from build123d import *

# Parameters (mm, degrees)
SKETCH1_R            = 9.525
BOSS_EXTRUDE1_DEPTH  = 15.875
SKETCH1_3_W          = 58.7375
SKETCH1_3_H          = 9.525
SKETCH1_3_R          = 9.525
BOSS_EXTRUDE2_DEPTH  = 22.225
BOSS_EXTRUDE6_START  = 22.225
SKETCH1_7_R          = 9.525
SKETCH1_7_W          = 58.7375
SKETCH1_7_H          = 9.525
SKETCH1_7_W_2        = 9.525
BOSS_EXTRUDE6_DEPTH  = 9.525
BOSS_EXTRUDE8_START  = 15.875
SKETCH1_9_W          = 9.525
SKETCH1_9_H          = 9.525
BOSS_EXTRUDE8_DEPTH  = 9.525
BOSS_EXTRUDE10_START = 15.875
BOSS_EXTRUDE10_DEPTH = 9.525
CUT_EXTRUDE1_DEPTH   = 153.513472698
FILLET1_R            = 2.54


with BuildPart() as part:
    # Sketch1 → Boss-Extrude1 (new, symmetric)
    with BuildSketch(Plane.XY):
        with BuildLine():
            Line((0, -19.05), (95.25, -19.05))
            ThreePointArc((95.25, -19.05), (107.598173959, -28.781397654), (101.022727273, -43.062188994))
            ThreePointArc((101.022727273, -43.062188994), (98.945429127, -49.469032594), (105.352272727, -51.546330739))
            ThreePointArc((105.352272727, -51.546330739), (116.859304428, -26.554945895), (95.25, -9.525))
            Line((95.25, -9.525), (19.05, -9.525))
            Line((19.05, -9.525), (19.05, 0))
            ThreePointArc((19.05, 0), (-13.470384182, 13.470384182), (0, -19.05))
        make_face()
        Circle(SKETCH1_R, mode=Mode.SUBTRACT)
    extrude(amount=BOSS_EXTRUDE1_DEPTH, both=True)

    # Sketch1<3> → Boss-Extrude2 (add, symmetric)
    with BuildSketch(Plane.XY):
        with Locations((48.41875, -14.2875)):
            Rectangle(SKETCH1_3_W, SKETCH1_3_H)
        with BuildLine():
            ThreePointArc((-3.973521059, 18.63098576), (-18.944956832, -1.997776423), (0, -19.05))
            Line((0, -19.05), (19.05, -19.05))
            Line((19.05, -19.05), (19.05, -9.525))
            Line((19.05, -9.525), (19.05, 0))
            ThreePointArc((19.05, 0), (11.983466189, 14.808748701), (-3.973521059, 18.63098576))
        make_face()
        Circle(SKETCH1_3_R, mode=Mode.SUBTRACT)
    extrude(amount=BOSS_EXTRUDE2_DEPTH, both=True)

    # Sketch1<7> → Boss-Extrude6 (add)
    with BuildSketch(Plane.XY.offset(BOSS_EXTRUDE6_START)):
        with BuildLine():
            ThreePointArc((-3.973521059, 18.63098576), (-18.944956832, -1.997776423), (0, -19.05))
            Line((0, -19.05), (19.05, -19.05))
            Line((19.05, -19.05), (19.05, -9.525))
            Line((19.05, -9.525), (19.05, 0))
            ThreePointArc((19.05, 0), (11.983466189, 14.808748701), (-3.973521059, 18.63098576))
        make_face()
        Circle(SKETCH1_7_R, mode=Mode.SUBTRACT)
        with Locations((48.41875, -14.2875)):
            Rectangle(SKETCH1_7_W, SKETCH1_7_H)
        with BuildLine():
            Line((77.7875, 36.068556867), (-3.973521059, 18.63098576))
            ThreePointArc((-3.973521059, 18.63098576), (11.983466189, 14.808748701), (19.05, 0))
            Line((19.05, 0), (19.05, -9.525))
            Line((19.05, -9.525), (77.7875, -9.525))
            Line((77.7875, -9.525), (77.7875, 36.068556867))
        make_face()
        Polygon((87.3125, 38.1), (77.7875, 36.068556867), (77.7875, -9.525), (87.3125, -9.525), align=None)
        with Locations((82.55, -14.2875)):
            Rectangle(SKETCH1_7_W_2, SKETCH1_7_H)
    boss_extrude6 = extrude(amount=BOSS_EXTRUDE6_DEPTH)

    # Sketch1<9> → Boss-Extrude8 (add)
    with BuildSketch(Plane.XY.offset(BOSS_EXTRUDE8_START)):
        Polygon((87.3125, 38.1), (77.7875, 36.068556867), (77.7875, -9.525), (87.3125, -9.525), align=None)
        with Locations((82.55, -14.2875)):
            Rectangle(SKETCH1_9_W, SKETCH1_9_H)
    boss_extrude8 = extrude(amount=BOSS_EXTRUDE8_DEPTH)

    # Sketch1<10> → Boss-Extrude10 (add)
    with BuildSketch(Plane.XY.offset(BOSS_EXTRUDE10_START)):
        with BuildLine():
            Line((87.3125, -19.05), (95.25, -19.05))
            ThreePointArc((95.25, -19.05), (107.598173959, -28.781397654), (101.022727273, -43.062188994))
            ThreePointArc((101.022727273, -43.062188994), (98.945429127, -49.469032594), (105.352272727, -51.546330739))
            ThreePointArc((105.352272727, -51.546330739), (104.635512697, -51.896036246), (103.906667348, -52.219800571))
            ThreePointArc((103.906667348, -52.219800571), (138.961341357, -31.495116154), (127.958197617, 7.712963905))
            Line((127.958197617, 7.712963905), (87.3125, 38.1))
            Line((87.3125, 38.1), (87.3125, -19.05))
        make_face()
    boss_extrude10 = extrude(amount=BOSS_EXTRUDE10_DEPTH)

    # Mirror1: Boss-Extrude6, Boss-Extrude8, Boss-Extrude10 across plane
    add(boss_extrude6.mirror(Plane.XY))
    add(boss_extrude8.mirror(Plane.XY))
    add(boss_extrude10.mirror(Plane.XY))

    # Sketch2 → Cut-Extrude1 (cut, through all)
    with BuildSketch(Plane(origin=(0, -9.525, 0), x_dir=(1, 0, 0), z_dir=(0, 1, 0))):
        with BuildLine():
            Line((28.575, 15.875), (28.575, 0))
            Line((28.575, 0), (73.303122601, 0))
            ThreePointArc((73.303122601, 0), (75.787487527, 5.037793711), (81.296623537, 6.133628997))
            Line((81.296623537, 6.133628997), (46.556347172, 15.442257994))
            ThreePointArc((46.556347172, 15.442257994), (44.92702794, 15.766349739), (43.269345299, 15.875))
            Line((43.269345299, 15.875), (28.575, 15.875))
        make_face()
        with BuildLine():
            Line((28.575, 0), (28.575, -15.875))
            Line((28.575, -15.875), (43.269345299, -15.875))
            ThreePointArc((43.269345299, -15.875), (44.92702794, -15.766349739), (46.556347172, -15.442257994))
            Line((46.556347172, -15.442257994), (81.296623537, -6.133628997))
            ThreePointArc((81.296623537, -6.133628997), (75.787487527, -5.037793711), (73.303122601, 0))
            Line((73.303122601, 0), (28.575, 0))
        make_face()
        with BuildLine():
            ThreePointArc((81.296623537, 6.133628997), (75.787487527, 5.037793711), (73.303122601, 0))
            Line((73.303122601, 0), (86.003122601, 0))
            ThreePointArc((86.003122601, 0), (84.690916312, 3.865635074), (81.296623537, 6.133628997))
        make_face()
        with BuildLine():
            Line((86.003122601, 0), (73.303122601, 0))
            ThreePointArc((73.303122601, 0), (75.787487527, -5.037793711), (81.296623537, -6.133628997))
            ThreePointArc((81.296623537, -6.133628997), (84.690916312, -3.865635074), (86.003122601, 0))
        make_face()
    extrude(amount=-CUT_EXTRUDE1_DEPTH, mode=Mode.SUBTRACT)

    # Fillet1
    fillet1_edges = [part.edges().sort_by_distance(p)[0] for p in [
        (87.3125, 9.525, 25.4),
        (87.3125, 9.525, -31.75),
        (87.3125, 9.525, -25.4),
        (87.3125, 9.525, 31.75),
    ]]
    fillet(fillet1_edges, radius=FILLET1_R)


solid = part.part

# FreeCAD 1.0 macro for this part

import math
import FreeCAD as App
import Part
import Sketcher
from FreeCAD import Vector
Q = App.Units.Quantity


def edges_at(feature, points):
    """Names of the edges that pass closest to the given points."""
    edges = feature.Shape.Edges
    near = lambda p: min(range(len(edges)), key=lambda i: edges[i].distToShape(Part.Vertex(*p))[0])
    return sorted({f"Edge{near(p) + 1}" for p in points})

doc = App.newDocument("Part")
params = doc.addObject("Spreadsheet::Sheet", "Params")
for row, (alias, value) in enumerate([
    ("sketch1_radius", "0.5 in"),
    ("sketch1_diameter", "0.75 in"),
    ("sketch1_width", "3 in"),
    ("sketch1_radius2", "0.75 in"),
    ("sketch1_radius3", "0.1875 in"),
    ("pad1_length", "1.25 in"),
    ("sketch2_diameter", "0.75 in"),
    ("sketch2_radius", "0.75 in"),
    ("sketch2_width", "2.3125 in"),
    ("pad2_length", "1.75 in"),
    ("sketch3_diameter", "0.75 in"),
    ("sketch3_radius", "0.75 in"),
    ("sketch3_height", "2.25 in"),
    ("sketch3_width", "3.4375 in"),
    ("pad3_length", "0.375 in"),
    ("sketch4_height", "2.25 in"),
    ("sketch4_width", "0.375 in"),
    ("pad4_length", "0.375 in"),
    ("sketch5_radius", "0.5 in"),
    ("sketch5_radius2", "0.1875 in"),
    ("sketch5_height", "2.25 in"),
    ("sketch5_width", "0.3125 in"),
    ("pad5_length", "0.375 in"),
    ("sketch6_radius", "0.5 in"),
    ("sketch6_radius2", "0.25 in"),
    ("sketch6_height", "1.25 in"),
    ("fillet_radius", "0.1 in"),
], start=1):
    params.set(f"A{row}", alias)
    params.set(f"B{row}", "=" + value)
    params.setAlias(f"B{row}", alias)

body = doc.addObject("PartDesign::Body", "Body")

# Sketch on XY plane
sketch1 = doc.addObject("Sketcher::SketchObject", "Sketch")
body.addObject(sketch1)
sketch1.AttachmentSupport = (doc.XY_Plane, [""])
sketch1.MapMode = "FlatFace"
sketch1.addGeometry([
    Part.LineSegment(Vector(0, -19.1, 0), Vector(95.2, -19.1, 0)),  # 0
    Part.ArcOfCircle(Part.Circle(Vector(95.2, -31.8, 0), Vector(0, 0, 1), 12.7), math.radians(-63), math.radians(90)),  # 1
    Part.ArcOfCircle(Part.Circle(Vector(103.2, -47.3, 0), Vector(0, 0, 1), 4.8), math.radians(117), math.radians(297)),  # 2
    Part.ArcOfCircle(Part.Circle(Vector(95.3, -31.8, 0), Vector(0, 0, 1), 22.2), math.radians(-63), math.radians(90)),  # 3
    Part.LineSegment(Vector(95.2, -9.5, 0), Vector(19.1, -9.5, 0)),  # 4
    Part.LineSegment(Vector(19.1, -9.5, 0), Vector(19.1, 0, 0)),  # 5
    Part.ArcOfCircle(Part.Circle(Vector(0, 0, 0), Vector(0, 0, 1), 19.1), math.radians(0), math.radians(270)),  # 6
    Part.Circle(Vector(0, 0, 0), Vector(0, 0, 1), 9.5),  # 7
], False)
sketch1.addConstraint([
    Sketcher.Constraint("Tangent", 0, 2, 1, 2),
    Sketcher.Constraint("Tangent", 1, 1, 2, 1),
    Sketcher.Constraint("Tangent", 2, 2, 3, 1),
    Sketcher.Constraint("Tangent", 3, 2, 4, 1),
    Sketcher.Constraint("Coincident", 4, 2, 5, 1),
    Sketcher.Constraint("Tangent", 5, 2, 6, 1),
    Sketcher.Constraint("Tangent", 6, 2, 0, 1),
    Sketcher.Constraint("Horizontal", 0),
    Sketcher.Constraint("Horizontal", 4),
    Sketcher.Constraint("Vertical", 5),
    Sketcher.Constraint("Coincident", 6, 3, -1, 1),
    Sketcher.Constraint("Coincident", 7, 3, -1, 1),
    Sketcher.Constraint("Coincident", 3, 3, 1, 3),
    Sketcher.Constraint("Radius", 1, Q("0.5 in")),
    Sketcher.Constraint("Diameter", 7, Q("0.75 in")),
    Sketcher.Constraint("DistanceX", 4, 2, 4, 1, Q("3 in")),
    Sketcher.Constraint("Radius", 6, Q("0.75 in")),
    Sketcher.Constraint("Radius", 2, Q("0.1875 in")),
    Sketcher.Constraint("DistanceX", -1, 1, 2, 3, Q("4.0625 in")),
])
sketch1.setExpression("Constraints[13]", "Params.sketch1_radius")
sketch1.setExpression("Constraints[14]", "Params.sketch1_diameter")
sketch1.setExpression("Constraints[15]", "Params.sketch1_width")
sketch1.setExpression("Constraints[16]", "Params.sketch1_radius2")
sketch1.setExpression("Constraints[17]", "Params.sketch1_radius3")
pad1 = doc.addObject("PartDesign::Pad", "Pad")
body.addObject(pad1)
pad1.Profile = sketch1
pad1.setExpression("Length", "Params.pad1_length")
pad1.Midplane = True

# Sketch on XY plane
sketch2 = doc.addObject("Sketcher::SketchObject", "Sketch001")
body.addObject(sketch2)
sketch2.AttachmentSupport = (doc.XY_Plane, [""])
sketch2.MapMode = "FlatFace"
sketch2.addGeometry([
    Part.LineSegment(Vector(78, -19, 0), Vector(78, -10, 0)),  # 0
    Part.LineSegment(Vector(78, -10, 0), Vector(19, -10, 0)),  # 1
    Part.LineSegment(Vector(19, -10, 0), Vector(19, 0, 0)),  # 2
    Part.ArcOfCircle(Part.Circle(Vector(0, 0, 0), Vector(0, 0, 1), 19), math.radians(0), math.radians(102)),  # 3
    Part.ArcOfCircle(Part.Circle(Vector(0, 0, 0), Vector(0, 0, 1), 19), math.radians(102), math.radians(270)),  # 4
    Part.LineSegment(Vector(0, -19, 0), Vector(78, -19, 0)),  # 5
    Part.Circle(Vector(0, 0, 0), Vector(0, 0, 1), 10),  # 6
], False)
sketch2.addConstraint([
    Sketcher.Constraint("Coincident", 0, 2, 1, 1),
    Sketcher.Constraint("Coincident", 1, 2, 2, 1),
    Sketcher.Constraint("Tangent", 2, 2, 3, 1),
    Sketcher.Constraint("Tangent", 3, 2, 4, 1),
    Sketcher.Constraint("Tangent", 4, 2, 5, 1),
    Sketcher.Constraint("Coincident", 5, 2, 0, 1),
    Sketcher.Constraint("Vertical", 0),
    Sketcher.Constraint("Horizontal", 1),
    Sketcher.Constraint("Vertical", 2),
    Sketcher.Constraint("Horizontal", 5),
    Sketcher.Constraint("Coincident", 3, 3, -1, 1),
    Sketcher.Constraint("Coincident", 6, 3, -1, 1),
    Sketcher.Constraint("Equal", 3, 4),
    Sketcher.Constraint("Equal", 0, 2),
    Sketcher.Constraint("Diameter", 6, Q("0.75 in")),
    Sketcher.Constraint("Radius", 3, Q("0.75 in")),
    Sketcher.Constraint("DistanceX", 1, 2, 1, 1, Q("2.3125 in")),
    Sketcher.Constraint("DistanceX", 3, 2, -1, 1, 3.973521),
])
sketch2.setExpression("Constraints[14]", "Params.sketch2_diameter")
sketch2.setExpression("Constraints[15]", "Params.sketch2_radius")
sketch2.setExpression("Constraints[16]", "Params.sketch2_width")
pad2 = doc.addObject("PartDesign::Pad", "Pad001")
body.addObject(pad2)
pad2.Profile = sketch2
pad2.setExpression("Length", "Params.pad2_length")
pad2.Midplane = True

# Sketch on XY plane
sketch3 = doc.addObject("Sketcher::SketchObject", "Sketch002")
body.addObject(sketch3)
sketch3.AttachmentSupport = (doc.XY_Plane, [""])
sketch3.MapMode = "FlatFace"
sketch3.AttachmentOffset = App.Placement(Vector(0, 0, 0.875 * 25.4), App.Rotation())
sketch3.addGeometry([
    Part.ArcOfCircle(Part.Circle(Vector(0, 0, 0), Vector(0, 0, 1), 19), math.radians(102), math.radians(270)),  # 0
    Part.LineSegment(Vector(0, -19, 0), Vector(87, -19, 0)),  # 1
    Part.LineSegment(Vector(87, -19, 0), Vector(87, 38, 0)),  # 2
    Part.LineSegment(Vector(87, 38, 0), Vector(78, 36, 0)),  # 3
    Part.LineSegment(Vector(78, 36, 0), Vector(-4, 19, 0)),  # 4
    Part.Circle(Vector(0, 0, 0), Vector(0, 0, 1), 10),  # 5
], False)
sketch3.addConstraint([
    Sketcher.Constraint("Tangent", 0, 2, 1, 1),
    Sketcher.Constraint("Coincident", 1, 2, 2, 1),
    Sketcher.Constraint("Coincident", 2, 2, 3, 1),
    Sketcher.Constraint("Coincident", 3, 2, 4, 1),
    Sketcher.Constraint("Tangent", 4, 2, 0, 1),
    Sketcher.Constraint("Horizontal", 1),
    Sketcher.Constraint("Vertical", 2),
    Sketcher.Constraint("Coincident", 0, 3, -1, 1),
    Sketcher.Constraint("Coincident", 5, 3, -1, 1),
    Sketcher.Constraint("Parallel", 3, 4),
    Sketcher.Constraint("Diameter", 5, Q("0.75 in")),
    Sketcher.Constraint("Radius", 0, Q("0.75 in")),
    Sketcher.Constraint("DistanceY", 2, 1, 2, 2, Q("2.25 in")),
    Sketcher.Constraint("DistanceX", 1, 1, 1, 2, Q("3.4375 in")),
    Sketcher.Constraint("DistanceX", -1, 1, 3, 2, Q("3.0625 in")),
])
sketch3.setExpression("Constraints[10]", "Params.sketch3_diameter")
sketch3.setExpression("Constraints[11]", "Params.sketch3_radius")
sketch3.setExpression("Constraints[12]", "Params.sketch3_height")
sketch3.setExpression("Constraints[13]", "Params.sketch3_width")
pad3 = doc.addObject("PartDesign::Pad", "Pad002")
body.addObject(pad3)
pad3.Profile = sketch3
pad3.setExpression("Length", "Params.pad3_length")

# Sketch on XY plane
sketch4 = doc.addObject("Sketcher::SketchObject", "Sketch003")
body.addObject(sketch4)
sketch4.AttachmentSupport = (doc.XY_Plane, [""])
sketch4.MapMode = "FlatFace"
sketch4.AttachmentOffset = App.Placement(Vector(0, 0, 0.625 * 25.4), App.Rotation())
sketch4.addGeometry([
    Part.LineSegment(Vector(87, 38, 0), Vector(78, 36, 0)),
    Part.LineSegment(Vector(78, 36, 0), Vector(78, -19, 0)),
    Part.LineSegment(Vector(78, -19, 0), Vector(87, -19, 0)),
    Part.LineSegment(Vector(87, -19, 0), Vector(87, 38, 0)),
], False)
sketch4.addConstraint([
    Sketcher.Constraint("Coincident", 0, 2, 1, 1),
    Sketcher.Constraint("Coincident", 1, 2, 2, 1),
    Sketcher.Constraint("Coincident", 2, 2, 3, 1),
    Sketcher.Constraint("Coincident", 3, 2, 0, 1),
    Sketcher.Constraint("Vertical", 1),
    Sketcher.Constraint("Horizontal", 2),
    Sketcher.Constraint("Vertical", 3),
    Sketcher.Constraint("DistanceY", 3, 1, 3, 2, Q("2.25 in")),
    Sketcher.Constraint("DistanceY", -1, 1, 3, 2, Q("1.5 in")),
    Sketcher.Constraint("DistanceX", 2, 1, 2, 2, Q("0.375 in")),
    Sketcher.Constraint("DistanceX", -1, 1, 0, 2, Q("3.0625 in")),
    Sketcher.Constraint("Distance", 0, 9.739219),
])
sketch4.setExpression("Constraints[7]", "Params.sketch4_height")
sketch4.setExpression("Constraints[9]", "Params.sketch4_width")
pad4 = doc.addObject("PartDesign::Pad", "Pad003")
body.addObject(pad4)
pad4.Profile = sketch4
pad4.setExpression("Length", "Params.pad4_length")

# Sketch on XY plane
sketch5 = doc.addObject("Sketcher::SketchObject", "Sketch004")
body.addObject(sketch5)
sketch5.AttachmentSupport = (doc.XY_Plane, [""])
sketch5.MapMode = "FlatFace"
sketch5.AttachmentOffset = App.Placement(Vector(0, 0, 0.625 * 25.4), App.Rotation())
sketch5.addGeometry([
    Part.LineSegment(Vector(87.3, -19.1, 0), Vector(95.2, -19.1, 0)),  # 0
    Part.ArcOfCircle(Part.Circle(Vector(95.2, -31.8, 0), Vector(0, 0, 1), 12.7), math.radians(-63), math.radians(90)),  # 1
    Part.ArcOfCircle(Part.Circle(Vector(103.2, -47.3, 0), Vector(0, 0, 1), 4.8), math.radians(117), math.radians(297)),  # 2
    Part.ArcOfCircle(Part.Circle(Vector(95.3, -31.8, 0), Vector(0, 0, 1), 22.2), math.radians(-67.08), math.radians(-62.96)),  # 3
    Part.ArcOfCircle(Part.Circle(Vector(108, -19.1, 0), Vector(0, 0, 1), 33.4), math.radians(-97), math.radians(53)),  # 4
    Part.LineSegment(Vector(128, 7.7, 0), Vector(87.3, 38.1, 0)),  # 5
    Part.LineSegment(Vector(87.3, 38.1, 0), Vector(87.3, -19.1, 0)),  # 6
], False)
sketch5.addConstraint([
    Sketcher.Constraint("Tangent", 0, 2, 1, 2),
    Sketcher.Constraint("Tangent", 1, 1, 2, 1),
    Sketcher.Constraint("Tangent", 2, 2, 3, 2),
    Sketcher.Constraint("Coincident", 3, 1, 4, 1),
    Sketcher.Constraint("Tangent", 4, 2, 5, 1),
    Sketcher.Constraint("Coincident", 5, 2, 6, 1),
    Sketcher.Constraint("Coincident", 6, 2, 0, 1),
    Sketcher.Constraint("Horizontal", 0),
    Sketcher.Constraint("Vertical", 6),
    Sketcher.Constraint("Coincident", 3, 3, 1, 3),
    Sketcher.Constraint("Horizontal", 4, 3, 0, 2),
    Sketcher.Constraint("Radius", 1, Q("0.5 in")),
    Sketcher.Constraint("Radius", 2, Q("0.1875 in")),
    Sketcher.Constraint("DistanceY", 6, 2, 6, 1, Q("2.25 in")),
    Sketcher.Constraint("DistanceY", -1, 1, 5, 2, Q("1.5 in")),
    Sketcher.Constraint("DistanceX", 1, 3, 4, 3, Q("0.5 in")),
    Sketcher.Constraint("DistanceX", 0, 1, 0, 2, Q("0.3125 in")),
    Sketcher.Constraint("DistanceX", -1, 1, 1, 3, Q("3.75 in")),
    Sketcher.Constraint("DistanceX", -1, 1, 2, 3, Q("4.0625 in")),
    Sketcher.Constraint("Radius", 4, 33.415329),
])
sketch5.setExpression("Constraints[11]", "Params.sketch5_radius")
sketch5.setExpression("Constraints[12]", "Params.sketch5_radius2")
sketch5.setExpression("Constraints[13]", "Params.sketch5_height")
sketch5.setExpression("Constraints[16]", "Params.sketch5_width")
pad5 = doc.addObject("PartDesign::Pad", "Pad004")
body.addObject(pad5)
pad5.Profile = sketch5
pad5.setExpression("Length", "Params.pad5_length")
doc.recompute()

mirrored = doc.addObject("PartDesign::Mirrored", "Mirrored")
body.addObject(mirrored)
mirrored.Originals = [pad3, pad4, pad5]
mirrored.MirrorPlane = (doc.XY_Plane, [""])
body.Tip = mirrored

# Sketch on XZ plane
sketch6 = doc.addObject("Sketcher::SketchObject", "Sketch005")
body.addObject(sketch6)
sketch6.AttachmentSupport = (doc.XZ_Plane, [""])
sketch6.MapMode = "FlatFace"
sketch6.AttachmentOffset = App.Placement(Vector(0, 0, 0.375 * 25.4), App.Rotation())
sketch6.addGeometry([
    Part.ArcOfCircle(Part.Circle(Vector(43.3, -3.2, 0), Vector(0, 0, 1), 12.7), math.radians(-90), math.radians(-75)),  # 0
    Part.LineSegment(Vector(43.3, -15.9, 0), Vector(28.6, -15.9, 0)),  # 1
    Part.LineSegment(Vector(28.6, -15.9, 0), Vector(28.6, 15.9, 0)),  # 2
    Part.LineSegment(Vector(28.6, 15.9, 0), Vector(43.3, 15.9, 0)),  # 3
    Part.ArcOfCircle(Part.Circle(Vector(43.3, 3.2, 0), Vector(0, 0, 1), 12.7), math.radians(75), math.radians(90)),  # 4
    Part.LineSegment(Vector(46.6, 15.4, 0), Vector(81.3, 6.1, 0)),  # 5
    Part.ArcOfCircle(Part.Circle(Vector(79.7, 0, 0), Vector(0, 0, 1), 6.3), math.radians(0), math.radians(75)),  # 6
    Part.ArcOfCircle(Part.Circle(Vector(79.7, 0, 0), Vector(0, 0, 1), 6.3), math.radians(-75), math.radians(0)),  # 7
    Part.LineSegment(Vector(81.3, -6.1, 0), Vector(46.6, -15.4, 0)),  # 8
], False)
sketch6.addConstraint([
    Sketcher.Constraint("Tangent", 0, 1, 1, 1),
    Sketcher.Constraint("Coincident", 1, 2, 2, 1),
    Sketcher.Constraint("Coincident", 2, 2, 3, 1),
    Sketcher.Constraint("Tangent", 3, 2, 4, 2),
    Sketcher.Constraint("Tangent", 4, 1, 5, 1),
    Sketcher.Constraint("Tangent", 5, 2, 6, 2),
    Sketcher.Constraint("Tangent", 6, 1, 7, 2),
    Sketcher.Constraint("Tangent", 7, 1, 8, 1),
    Sketcher.Constraint("Tangent", 8, 2, 0, 2),
    Sketcher.Constraint("Horizontal", 1),
    Sketcher.Constraint("Vertical", 2),
    Sketcher.Constraint("Horizontal", 3),
    Sketcher.Constraint("Equal", 0, 4),
    Sketcher.Constraint("Equal", 6, 7),
    Sketcher.Constraint("Symmetric", 0, 3, 4, 3, -1),
    Sketcher.Constraint("PointOnObject", 6, 3, -1),
    Sketcher.Constraint("PointOnObject", 6, 1, -1),
    Sketcher.Constraint("Radius", 0, Q("0.5 in")),
    Sketcher.Constraint("Radius", 6, Q("0.25 in")),
    Sketcher.Constraint("Angle", 5, Q("-15 deg")),
    Sketcher.Constraint("DistanceY", 2, 1, 2, 2, Q("1.25 in")),
    Sketcher.Constraint("DistanceX", -1, 1, 1, 2, Q("1.125 in")),
    Sketcher.Constraint("DistanceX", 1, 2, 1, 1, 14.694345),
])
sketch6.setExpression("Constraints[17]", "Params.sketch6_radius")
sketch6.setExpression("Constraints[18]", "Params.sketch6_radius2")
sketch6.setExpression("Constraints[20]", "Params.sketch6_height")
pocket1 = doc.addObject("PartDesign::Pocket", "Pocket")
body.addObject(pocket1)
pocket1.Profile = sketch6
pocket1.Type = "ThroughAll"
pocket1.Reversed = True
doc.recompute()

fillet = doc.addObject("PartDesign::Fillet", "Fillet")
body.addObject(fillet)
fillet.Base = (pocket1, edges_at(pocket1, [
    (87.312, 9.525, 25.4),
    (87.312, 9.525, -31.75),
    (87.312, 9.525, -25.4),
    (87.312, 9.525, 31.75),
]))
fillet.setExpression("Radius", "Params.fillet_radius")

doc.recompute()
